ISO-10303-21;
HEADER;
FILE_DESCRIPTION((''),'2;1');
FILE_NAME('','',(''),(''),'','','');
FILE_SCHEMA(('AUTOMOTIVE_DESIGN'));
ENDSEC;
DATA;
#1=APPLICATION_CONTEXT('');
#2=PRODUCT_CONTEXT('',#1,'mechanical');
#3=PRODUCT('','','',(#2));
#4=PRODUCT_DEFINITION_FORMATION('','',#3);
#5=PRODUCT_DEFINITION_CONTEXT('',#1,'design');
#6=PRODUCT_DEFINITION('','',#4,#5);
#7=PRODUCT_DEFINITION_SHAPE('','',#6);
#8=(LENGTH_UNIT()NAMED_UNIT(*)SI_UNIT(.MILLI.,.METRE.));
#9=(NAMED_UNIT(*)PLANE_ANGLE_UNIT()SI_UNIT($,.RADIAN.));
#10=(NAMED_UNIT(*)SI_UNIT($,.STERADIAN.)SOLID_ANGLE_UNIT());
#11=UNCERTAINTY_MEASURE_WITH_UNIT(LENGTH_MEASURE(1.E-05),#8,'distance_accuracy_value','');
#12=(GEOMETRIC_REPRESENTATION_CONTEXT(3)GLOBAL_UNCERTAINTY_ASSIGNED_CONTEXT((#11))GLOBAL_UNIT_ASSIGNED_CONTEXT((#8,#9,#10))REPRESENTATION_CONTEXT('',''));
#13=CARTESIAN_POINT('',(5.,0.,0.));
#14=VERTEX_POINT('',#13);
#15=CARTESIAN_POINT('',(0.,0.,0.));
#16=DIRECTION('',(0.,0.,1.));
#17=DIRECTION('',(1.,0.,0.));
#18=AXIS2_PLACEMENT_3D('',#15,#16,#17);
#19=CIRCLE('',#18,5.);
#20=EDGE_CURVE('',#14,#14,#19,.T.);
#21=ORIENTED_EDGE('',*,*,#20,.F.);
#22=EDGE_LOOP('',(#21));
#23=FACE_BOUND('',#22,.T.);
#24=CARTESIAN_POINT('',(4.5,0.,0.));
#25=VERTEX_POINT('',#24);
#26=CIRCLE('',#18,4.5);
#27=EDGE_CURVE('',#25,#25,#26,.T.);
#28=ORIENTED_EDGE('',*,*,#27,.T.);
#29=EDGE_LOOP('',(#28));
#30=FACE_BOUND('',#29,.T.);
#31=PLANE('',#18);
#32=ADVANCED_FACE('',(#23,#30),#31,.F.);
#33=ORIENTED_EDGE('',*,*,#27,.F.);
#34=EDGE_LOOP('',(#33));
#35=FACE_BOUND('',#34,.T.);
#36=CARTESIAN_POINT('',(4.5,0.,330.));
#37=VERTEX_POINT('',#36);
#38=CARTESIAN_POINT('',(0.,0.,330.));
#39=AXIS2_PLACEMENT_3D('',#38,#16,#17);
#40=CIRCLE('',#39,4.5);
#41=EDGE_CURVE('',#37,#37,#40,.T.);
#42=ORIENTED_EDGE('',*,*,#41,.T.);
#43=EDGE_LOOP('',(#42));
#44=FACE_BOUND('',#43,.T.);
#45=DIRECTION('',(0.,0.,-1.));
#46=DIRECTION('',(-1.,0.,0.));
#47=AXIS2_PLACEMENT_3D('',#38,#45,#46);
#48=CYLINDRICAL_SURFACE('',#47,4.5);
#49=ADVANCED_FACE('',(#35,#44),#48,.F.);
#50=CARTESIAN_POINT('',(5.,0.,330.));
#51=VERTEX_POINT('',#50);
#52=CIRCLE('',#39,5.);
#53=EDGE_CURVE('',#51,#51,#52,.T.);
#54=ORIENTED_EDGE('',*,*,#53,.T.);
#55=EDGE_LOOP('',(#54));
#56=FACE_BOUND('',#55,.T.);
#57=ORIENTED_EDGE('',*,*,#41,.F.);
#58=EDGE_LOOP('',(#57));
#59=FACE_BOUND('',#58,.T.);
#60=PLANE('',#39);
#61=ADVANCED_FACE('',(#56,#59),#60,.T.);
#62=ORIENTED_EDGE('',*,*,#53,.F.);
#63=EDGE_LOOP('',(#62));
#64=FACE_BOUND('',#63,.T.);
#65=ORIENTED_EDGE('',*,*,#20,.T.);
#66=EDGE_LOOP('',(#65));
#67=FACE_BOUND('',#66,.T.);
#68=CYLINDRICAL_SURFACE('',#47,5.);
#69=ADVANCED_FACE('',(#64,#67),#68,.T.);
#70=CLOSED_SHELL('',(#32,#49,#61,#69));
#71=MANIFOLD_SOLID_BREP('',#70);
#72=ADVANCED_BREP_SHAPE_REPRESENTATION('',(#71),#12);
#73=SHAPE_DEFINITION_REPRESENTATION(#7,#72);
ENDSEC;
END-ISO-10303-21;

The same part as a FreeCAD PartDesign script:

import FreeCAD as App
import Part
import Sketcher

V = App.Vector

doc = App.newDocument("Part")
body = doc.addObject("PartDesign::Body", "Body")

# Sketch on XY plane
sketch1 = doc.addObject("Sketcher::SketchObject", "Sketch")
body.addObject(sketch1)
sketch1.AttachmentSupport = (doc.XY_Plane, [""])
sketch1.MapMode = "FlatFace"
sketch1.addGeometry([
    Part.Circle(V(0, 0, 0), V(0, 0, 1), 5),
    Part.Circle(V(0, 0, 0), V(0, 0, 1), 4.5),
], False)
sketch1.addConstraint([
    Sketcher.Constraint("Coincident", 0, 3, -1, 1),
    Sketcher.Constraint("Coincident", 1, 3, -1, 1),
    Sketcher.Constraint("Diameter", 0, 10.0),
    Sketcher.Constraint("Diameter", 1, 9.0),
])
pad1 = doc.addObject("PartDesign::Pad", "Pad")
body.addObject(pad1)
pad1.Profile = sketch1
pad1.Length = 330

doc.recompute()
